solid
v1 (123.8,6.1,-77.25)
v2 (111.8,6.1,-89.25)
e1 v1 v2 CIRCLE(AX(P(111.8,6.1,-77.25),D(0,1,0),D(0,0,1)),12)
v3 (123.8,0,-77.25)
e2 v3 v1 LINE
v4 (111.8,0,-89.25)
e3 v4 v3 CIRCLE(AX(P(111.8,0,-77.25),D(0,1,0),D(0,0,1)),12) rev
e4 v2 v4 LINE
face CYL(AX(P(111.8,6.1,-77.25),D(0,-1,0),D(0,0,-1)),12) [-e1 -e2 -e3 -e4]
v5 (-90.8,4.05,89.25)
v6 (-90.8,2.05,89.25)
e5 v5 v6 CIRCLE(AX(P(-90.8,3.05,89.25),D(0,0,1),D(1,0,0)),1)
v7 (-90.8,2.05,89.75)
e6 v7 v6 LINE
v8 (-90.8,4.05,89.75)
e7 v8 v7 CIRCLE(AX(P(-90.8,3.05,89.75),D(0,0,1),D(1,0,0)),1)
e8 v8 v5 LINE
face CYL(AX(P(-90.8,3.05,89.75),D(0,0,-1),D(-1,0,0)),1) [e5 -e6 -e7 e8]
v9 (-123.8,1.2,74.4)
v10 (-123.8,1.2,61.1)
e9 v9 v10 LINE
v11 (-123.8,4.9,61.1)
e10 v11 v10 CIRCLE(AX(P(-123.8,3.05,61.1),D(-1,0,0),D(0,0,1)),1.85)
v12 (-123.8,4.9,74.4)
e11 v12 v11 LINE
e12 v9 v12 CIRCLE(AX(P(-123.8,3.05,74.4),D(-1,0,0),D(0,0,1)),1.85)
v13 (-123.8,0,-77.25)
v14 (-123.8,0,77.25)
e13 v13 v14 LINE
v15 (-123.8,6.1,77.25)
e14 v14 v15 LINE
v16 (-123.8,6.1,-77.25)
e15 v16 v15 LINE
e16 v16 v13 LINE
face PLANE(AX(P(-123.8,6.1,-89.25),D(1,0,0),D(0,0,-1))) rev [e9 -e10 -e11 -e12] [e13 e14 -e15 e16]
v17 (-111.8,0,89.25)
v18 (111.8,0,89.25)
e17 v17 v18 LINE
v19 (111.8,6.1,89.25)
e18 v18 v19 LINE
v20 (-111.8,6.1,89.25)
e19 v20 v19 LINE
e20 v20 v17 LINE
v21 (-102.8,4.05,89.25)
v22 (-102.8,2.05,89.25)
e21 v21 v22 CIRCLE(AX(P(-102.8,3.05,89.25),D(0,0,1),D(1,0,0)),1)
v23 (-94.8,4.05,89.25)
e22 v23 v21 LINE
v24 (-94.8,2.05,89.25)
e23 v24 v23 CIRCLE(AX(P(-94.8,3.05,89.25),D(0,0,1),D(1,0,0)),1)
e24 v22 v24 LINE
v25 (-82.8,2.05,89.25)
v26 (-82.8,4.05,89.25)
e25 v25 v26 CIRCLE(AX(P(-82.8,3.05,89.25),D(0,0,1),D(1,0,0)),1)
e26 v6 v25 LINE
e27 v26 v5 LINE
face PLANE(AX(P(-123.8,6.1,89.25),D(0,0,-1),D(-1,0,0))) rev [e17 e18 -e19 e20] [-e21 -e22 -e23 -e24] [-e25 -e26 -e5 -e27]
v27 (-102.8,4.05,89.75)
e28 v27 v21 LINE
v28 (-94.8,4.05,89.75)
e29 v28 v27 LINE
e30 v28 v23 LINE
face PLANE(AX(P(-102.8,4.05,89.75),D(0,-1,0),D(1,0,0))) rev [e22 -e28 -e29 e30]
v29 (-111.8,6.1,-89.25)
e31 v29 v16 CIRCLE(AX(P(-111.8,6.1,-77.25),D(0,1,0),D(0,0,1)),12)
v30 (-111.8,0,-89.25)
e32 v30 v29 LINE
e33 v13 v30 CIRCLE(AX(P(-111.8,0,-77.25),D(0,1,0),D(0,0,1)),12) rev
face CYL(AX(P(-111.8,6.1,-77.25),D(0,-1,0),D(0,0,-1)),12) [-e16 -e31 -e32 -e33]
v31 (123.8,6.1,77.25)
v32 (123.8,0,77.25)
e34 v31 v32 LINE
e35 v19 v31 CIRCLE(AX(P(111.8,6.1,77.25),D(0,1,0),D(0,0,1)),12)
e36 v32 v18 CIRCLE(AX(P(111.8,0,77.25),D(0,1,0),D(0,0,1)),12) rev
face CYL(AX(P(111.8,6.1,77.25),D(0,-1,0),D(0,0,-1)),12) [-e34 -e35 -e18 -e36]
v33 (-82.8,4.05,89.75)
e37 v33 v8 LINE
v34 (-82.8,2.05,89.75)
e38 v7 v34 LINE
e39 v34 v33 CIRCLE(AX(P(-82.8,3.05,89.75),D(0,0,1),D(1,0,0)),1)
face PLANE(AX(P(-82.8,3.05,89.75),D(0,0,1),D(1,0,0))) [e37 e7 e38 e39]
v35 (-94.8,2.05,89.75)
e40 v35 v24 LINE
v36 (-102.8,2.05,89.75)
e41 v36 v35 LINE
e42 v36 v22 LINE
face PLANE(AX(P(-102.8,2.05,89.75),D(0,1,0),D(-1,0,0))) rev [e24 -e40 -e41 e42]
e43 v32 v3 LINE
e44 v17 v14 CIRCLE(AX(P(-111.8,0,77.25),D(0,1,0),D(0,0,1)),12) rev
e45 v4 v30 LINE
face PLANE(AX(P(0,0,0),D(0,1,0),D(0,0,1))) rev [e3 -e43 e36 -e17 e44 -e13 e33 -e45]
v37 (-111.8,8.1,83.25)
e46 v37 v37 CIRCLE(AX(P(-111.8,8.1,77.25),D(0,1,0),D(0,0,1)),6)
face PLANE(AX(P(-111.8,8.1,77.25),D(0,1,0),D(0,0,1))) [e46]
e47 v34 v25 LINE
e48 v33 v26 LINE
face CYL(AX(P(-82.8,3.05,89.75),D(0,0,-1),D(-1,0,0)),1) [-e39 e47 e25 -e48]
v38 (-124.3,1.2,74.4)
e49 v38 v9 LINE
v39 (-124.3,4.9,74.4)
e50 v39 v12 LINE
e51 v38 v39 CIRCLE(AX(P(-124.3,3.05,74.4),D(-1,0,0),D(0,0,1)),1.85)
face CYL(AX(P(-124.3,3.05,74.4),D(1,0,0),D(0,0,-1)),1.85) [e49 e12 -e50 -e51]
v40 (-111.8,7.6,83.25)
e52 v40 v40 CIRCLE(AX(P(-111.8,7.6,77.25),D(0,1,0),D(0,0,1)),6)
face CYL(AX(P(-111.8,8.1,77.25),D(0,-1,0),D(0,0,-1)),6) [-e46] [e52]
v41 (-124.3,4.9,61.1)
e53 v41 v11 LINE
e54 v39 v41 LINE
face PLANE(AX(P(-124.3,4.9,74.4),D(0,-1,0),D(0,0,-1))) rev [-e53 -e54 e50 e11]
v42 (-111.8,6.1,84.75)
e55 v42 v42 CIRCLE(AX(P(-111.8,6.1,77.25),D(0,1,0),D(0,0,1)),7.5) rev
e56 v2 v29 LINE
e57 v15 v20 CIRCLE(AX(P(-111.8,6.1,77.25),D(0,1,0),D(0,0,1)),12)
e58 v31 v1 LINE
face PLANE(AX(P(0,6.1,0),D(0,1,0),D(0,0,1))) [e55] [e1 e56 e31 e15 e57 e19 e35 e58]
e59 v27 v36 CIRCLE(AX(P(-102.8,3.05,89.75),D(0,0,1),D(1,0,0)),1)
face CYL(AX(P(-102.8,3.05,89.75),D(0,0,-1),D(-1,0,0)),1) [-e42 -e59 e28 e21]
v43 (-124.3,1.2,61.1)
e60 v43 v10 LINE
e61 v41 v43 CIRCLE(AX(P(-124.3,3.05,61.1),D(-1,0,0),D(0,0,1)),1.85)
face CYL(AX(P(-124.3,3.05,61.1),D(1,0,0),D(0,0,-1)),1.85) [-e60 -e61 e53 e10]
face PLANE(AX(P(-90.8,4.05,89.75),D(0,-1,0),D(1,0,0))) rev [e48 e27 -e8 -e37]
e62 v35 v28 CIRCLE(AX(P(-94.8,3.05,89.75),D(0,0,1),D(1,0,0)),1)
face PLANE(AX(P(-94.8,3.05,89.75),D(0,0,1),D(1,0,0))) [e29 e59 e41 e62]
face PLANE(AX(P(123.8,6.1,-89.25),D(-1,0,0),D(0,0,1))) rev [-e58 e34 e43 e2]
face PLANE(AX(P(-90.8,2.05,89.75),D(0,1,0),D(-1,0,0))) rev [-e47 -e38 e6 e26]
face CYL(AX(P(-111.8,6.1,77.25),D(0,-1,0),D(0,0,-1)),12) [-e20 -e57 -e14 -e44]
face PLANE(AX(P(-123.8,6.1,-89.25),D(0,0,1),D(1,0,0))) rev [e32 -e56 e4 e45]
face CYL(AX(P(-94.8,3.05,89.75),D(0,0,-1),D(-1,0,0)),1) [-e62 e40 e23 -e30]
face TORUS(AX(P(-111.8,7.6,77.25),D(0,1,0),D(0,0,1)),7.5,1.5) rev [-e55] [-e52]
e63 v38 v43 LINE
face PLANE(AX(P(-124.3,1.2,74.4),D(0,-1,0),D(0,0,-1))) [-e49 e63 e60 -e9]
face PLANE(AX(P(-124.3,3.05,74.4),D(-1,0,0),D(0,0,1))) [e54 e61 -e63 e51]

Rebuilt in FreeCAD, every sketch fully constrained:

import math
import FreeCAD as App
import Part
import Sketcher
Q = App.Units.Quantity


def edges_at(feature, points):
    """Names of the edges that pass closest to the given points."""
    edges = feature.Shape.Edges
    near = lambda p: min(range(len(edges)), key=lambda i: edges[i].distToShape(Part.Vertex(*p))[0])
    return sorted({f"Edge{near(p) + 1}" for p in points})


def add_polygon(sketch, points):
    """Adds a closed chain of lines whose ends are joined by coincident constraints."""
    first, n = sketch.GeometryCount, len(points)
    for a, b in zip(points, points[1:] + points[:1]):
        sketch.addGeometry(Part.LineSegment(App.Vector(*a, 0), App.Vector(*b, 0)), False)
    for i in range(n):
        sketch.addConstraint(Sketcher.Constraint("Coincident", first + i, 2, first + (i + 1) % n, 1))

doc = App.newDocument("Part")
body = doc.addObject("PartDesign::Body", "Body")

sketch1 = body.newObject("Sketcher::SketchObject", "Sketch")
sketch1.AttachmentSupport = (doc.getObject("XZ_Plane"), [""])
sketch1.MapMode = "FlatFace"
add_polygon(sketch1, [(-123.8, -89.25), (-123.8, 89.25), (123.8, 89.25), (123.8, -89.25)])
sketch1.addConstraint([
    Sketcher.Constraint("Vertical", 0),
    Sketcher.Constraint("Horizontal", 1),
    Sketcher.Constraint("Vertical", 2),
    Sketcher.Constraint("Horizontal", 3),
    Sketcher.Constraint("Symmetric", 0, 2, 2, 2, -1, 1),
    Sketcher.Constraint("DistanceX", 1, 1, 1, 2, Q("247.6 mm")),
    Sketcher.Constraint("DistanceY", 0, 1, 0, 2, Q("178.5 mm")),
])
pad1 = body.newObject("PartDesign::Pad", "Pad")
pad1.Profile = sketch1
pad1.Length = 6.1
pad1.Reversed = True
doc.recompute()

fillet = body.newObject("PartDesign::Fillet", "Fillet")
fillet.Base = (pad1, edges_at(pad1, [
    (-123.8, 3.05, -89.25),
    (123.8, 3.05, -89.25),
    (123.8, 3.05, 89.25),
    (-123.8, 3.05, 89.25),
]))
fillet.Radius = 12

sketch2 = body.newObject("Sketcher::SketchObject", "Sketch001")
sketch2.AttachmentSupport = (doc.getObject("XZ_Plane"), [""])
sketch2.MapMode = "FlatFace"
sketch2.AttachmentOffset = App.Placement(App.Vector(0, 0, -6.1), App.Rotation())
sketch2.addGeometry(Part.Circle(App.Vector(-111.8, 77.25, 0), App.Vector(0, 0, 1), 6), False)
sketch2.addConstraint([
    Sketcher.Constraint("Diameter", 0, Q("12 mm")),
    Sketcher.Constraint("DistanceX", 0, 3, -1, 1, Q("111.8 mm")),
    Sketcher.Constraint("DistanceY", -1, 1, 0, 3, Q("77.25 mm")),
])
pad2 = body.newObject("PartDesign::Pad", "Pad001")
pad2.Profile = sketch2
pad2.Length = 2
pad2.Reversed = True
doc.recompute()

fillet2 = body.newObject("PartDesign::Fillet", "Fillet001")
fillet2.Base = (pad2, edges_at(pad2, [(-117.8, 6.1, 77.25)]))
fillet2.Radius = 1.5

sketch3 = body.newObject("Sketcher::SketchObject", "Sketch002")
sketch3.AttachmentSupport = (doc.getObject("YZ_Plane"), [""])
sketch3.MapMode = "FlatFace"
sketch3.AttachmentOffset = App.Placement(App.Vector(0, 0, -123.8), App.Rotation())
sketch3.addGeometry([
    Part.LineSegment(App.Vector(1.2, 61.1, 0), App.Vector(1.2, 74.4, 0)),
    Part.ArcOfCircle(Part.Circle(App.Vector(3.05, 74.4, 0), App.Vector(0, 0, 1), 1.85), math.radians(0), math.radians(180)),
    Part.LineSegment(App.Vector(4.9, 74.4, 0), App.Vector(4.9, 61.1, 0)),
    Part.ArcOfCircle(Part.Circle(App.Vector(3.05, 61.1, 0), App.Vector(0, 0, 1), 1.85), math.radians(180), math.radians(360)),
], False)
sketch3.addConstraint([
    Sketcher.Constraint("Tangent", 0, 2, 1, 2),
    Sketcher.Constraint("Tangent", 1, 1, 2, 1),
    Sketcher.Constraint("Tangent", 2, 2, 3, 2),
    Sketcher.Constraint("Tangent", 3, 1, 0, 1),
    Sketcher.Constraint("Vertical", 0),
    Sketcher.Constraint("Vertical", 2),
    Sketcher.Constraint("Radius", 1, Q("1.85 mm")),
    Sketcher.Constraint("DistanceY", 0, 1, 0, 2, Q("13.3 mm")),
    Sketcher.Constraint("DistanceY", -1, 1, 1, 3, Q("74.4 mm")),
    Sketcher.Constraint("DistanceX", -1, 1, 0, 2, Q("1.2 mm")),
])
pad3 = body.newObject("PartDesign::Pad", "Pad002")
pad3.Profile = sketch3
pad3.Length = 0.5
pad3.Reversed = True

sketch4 = body.newObject("Sketcher::SketchObject", "Sketch003")
sketch4.AttachmentSupport = (doc.getObject("XY_Plane"), [""])
sketch4.MapMode = "FlatFace"
sketch4.AttachmentOffset = App.Placement(App.Vector(0, 0, 89.25), App.Rotation())
sketch4.addGeometry([
    Part.LineSegment(App.Vector(-94.8, 4.05, 0), App.Vector(-102.8, 4.05, 0)),
    Part.ArcOfCircle(Part.Circle(App.Vector(-102.8, 3.05, 0), App.Vector(0, 0, 1), 1), math.radians(90), math.radians(270)),
    Part.LineSegment(App.Vector(-102.8, 2.05, 0), App.Vector(-94.8, 2.05, 0)),
    Part.ArcOfCircle(Part.Circle(App.Vector(-94.8, 3.05, 0), App.Vector(0, 0, 1), 1), math.radians(-90), math.radians(90)),
    Part.LineSegment(App.Vector(-82.8, 4.05, 0), App.Vector(-90.8, 4.05, 0)),
    Part.ArcOfCircle(Part.Circle(App.Vector(-90.8, 3.05, 0), App.Vector(0, 0, 1), 1), math.radians(90), math.radians(270)),
    Part.LineSegment(App.Vector(-90.8, 2.05, 0), App.Vector(-82.8, 2.05, 0)),
    Part.ArcOfCircle(Part.Circle(App.Vector(-82.8, 3.05, 0), App.Vector(0, 0, 1), 1), math.radians(-90), math.radians(90)),
], False)
sketch4.addConstraint([
    Sketcher.Constraint("Tangent", 0, 2, 1, 1),
    Sketcher.Constraint("Tangent", 1, 2, 2, 1),
    Sketcher.Constraint("Tangent", 2, 2, 3, 1),
    Sketcher.Constraint("Tangent", 3, 2, 0, 1),
    Sketcher.Constraint("Tangent", 4, 2, 5, 1),
    Sketcher.Constraint("Tangent", 5, 2, 6, 1),
    Sketcher.Constraint("Tangent", 6, 2, 7, 1),
    Sketcher.Constraint("Tangent", 7, 2, 4, 1),
    Sketcher.Constraint("Horizontal", 0),
    Sketcher.Constraint("Horizontal", 2),
    Sketcher.Constraint("Horizontal", 4),
    Sketcher.Constraint("Horizontal", 6),
    Sketcher.Constraint("Equal", 3, 5),
    Sketcher.Constraint("Horizontal", 3, 3, 5, 3),
    Sketcher.Constraint("Equal", 2, 4),
    Sketcher.Constraint("Radius", 1, Q("1 mm")),
    Sketcher.Constraint("DistanceX", 0, 2, 0, 1, Q("8 mm")),
    Sketcher.Constraint("DistanceX", 3, 3, 5, 3, Q("4 mm")),
    Sketcher.Constraint("DistanceX", 1, 3, -1, 1, Q("102.8 mm")),
    Sketcher.Constraint("DistanceY", -1, 1, 1, 3, Q("3.05 mm")),
])
pad4 = body.newObject("PartDesign::Pad", "Pad003")
pad4.Profile = sketch4
pad4.Length = 0.5

doc.recompute()
